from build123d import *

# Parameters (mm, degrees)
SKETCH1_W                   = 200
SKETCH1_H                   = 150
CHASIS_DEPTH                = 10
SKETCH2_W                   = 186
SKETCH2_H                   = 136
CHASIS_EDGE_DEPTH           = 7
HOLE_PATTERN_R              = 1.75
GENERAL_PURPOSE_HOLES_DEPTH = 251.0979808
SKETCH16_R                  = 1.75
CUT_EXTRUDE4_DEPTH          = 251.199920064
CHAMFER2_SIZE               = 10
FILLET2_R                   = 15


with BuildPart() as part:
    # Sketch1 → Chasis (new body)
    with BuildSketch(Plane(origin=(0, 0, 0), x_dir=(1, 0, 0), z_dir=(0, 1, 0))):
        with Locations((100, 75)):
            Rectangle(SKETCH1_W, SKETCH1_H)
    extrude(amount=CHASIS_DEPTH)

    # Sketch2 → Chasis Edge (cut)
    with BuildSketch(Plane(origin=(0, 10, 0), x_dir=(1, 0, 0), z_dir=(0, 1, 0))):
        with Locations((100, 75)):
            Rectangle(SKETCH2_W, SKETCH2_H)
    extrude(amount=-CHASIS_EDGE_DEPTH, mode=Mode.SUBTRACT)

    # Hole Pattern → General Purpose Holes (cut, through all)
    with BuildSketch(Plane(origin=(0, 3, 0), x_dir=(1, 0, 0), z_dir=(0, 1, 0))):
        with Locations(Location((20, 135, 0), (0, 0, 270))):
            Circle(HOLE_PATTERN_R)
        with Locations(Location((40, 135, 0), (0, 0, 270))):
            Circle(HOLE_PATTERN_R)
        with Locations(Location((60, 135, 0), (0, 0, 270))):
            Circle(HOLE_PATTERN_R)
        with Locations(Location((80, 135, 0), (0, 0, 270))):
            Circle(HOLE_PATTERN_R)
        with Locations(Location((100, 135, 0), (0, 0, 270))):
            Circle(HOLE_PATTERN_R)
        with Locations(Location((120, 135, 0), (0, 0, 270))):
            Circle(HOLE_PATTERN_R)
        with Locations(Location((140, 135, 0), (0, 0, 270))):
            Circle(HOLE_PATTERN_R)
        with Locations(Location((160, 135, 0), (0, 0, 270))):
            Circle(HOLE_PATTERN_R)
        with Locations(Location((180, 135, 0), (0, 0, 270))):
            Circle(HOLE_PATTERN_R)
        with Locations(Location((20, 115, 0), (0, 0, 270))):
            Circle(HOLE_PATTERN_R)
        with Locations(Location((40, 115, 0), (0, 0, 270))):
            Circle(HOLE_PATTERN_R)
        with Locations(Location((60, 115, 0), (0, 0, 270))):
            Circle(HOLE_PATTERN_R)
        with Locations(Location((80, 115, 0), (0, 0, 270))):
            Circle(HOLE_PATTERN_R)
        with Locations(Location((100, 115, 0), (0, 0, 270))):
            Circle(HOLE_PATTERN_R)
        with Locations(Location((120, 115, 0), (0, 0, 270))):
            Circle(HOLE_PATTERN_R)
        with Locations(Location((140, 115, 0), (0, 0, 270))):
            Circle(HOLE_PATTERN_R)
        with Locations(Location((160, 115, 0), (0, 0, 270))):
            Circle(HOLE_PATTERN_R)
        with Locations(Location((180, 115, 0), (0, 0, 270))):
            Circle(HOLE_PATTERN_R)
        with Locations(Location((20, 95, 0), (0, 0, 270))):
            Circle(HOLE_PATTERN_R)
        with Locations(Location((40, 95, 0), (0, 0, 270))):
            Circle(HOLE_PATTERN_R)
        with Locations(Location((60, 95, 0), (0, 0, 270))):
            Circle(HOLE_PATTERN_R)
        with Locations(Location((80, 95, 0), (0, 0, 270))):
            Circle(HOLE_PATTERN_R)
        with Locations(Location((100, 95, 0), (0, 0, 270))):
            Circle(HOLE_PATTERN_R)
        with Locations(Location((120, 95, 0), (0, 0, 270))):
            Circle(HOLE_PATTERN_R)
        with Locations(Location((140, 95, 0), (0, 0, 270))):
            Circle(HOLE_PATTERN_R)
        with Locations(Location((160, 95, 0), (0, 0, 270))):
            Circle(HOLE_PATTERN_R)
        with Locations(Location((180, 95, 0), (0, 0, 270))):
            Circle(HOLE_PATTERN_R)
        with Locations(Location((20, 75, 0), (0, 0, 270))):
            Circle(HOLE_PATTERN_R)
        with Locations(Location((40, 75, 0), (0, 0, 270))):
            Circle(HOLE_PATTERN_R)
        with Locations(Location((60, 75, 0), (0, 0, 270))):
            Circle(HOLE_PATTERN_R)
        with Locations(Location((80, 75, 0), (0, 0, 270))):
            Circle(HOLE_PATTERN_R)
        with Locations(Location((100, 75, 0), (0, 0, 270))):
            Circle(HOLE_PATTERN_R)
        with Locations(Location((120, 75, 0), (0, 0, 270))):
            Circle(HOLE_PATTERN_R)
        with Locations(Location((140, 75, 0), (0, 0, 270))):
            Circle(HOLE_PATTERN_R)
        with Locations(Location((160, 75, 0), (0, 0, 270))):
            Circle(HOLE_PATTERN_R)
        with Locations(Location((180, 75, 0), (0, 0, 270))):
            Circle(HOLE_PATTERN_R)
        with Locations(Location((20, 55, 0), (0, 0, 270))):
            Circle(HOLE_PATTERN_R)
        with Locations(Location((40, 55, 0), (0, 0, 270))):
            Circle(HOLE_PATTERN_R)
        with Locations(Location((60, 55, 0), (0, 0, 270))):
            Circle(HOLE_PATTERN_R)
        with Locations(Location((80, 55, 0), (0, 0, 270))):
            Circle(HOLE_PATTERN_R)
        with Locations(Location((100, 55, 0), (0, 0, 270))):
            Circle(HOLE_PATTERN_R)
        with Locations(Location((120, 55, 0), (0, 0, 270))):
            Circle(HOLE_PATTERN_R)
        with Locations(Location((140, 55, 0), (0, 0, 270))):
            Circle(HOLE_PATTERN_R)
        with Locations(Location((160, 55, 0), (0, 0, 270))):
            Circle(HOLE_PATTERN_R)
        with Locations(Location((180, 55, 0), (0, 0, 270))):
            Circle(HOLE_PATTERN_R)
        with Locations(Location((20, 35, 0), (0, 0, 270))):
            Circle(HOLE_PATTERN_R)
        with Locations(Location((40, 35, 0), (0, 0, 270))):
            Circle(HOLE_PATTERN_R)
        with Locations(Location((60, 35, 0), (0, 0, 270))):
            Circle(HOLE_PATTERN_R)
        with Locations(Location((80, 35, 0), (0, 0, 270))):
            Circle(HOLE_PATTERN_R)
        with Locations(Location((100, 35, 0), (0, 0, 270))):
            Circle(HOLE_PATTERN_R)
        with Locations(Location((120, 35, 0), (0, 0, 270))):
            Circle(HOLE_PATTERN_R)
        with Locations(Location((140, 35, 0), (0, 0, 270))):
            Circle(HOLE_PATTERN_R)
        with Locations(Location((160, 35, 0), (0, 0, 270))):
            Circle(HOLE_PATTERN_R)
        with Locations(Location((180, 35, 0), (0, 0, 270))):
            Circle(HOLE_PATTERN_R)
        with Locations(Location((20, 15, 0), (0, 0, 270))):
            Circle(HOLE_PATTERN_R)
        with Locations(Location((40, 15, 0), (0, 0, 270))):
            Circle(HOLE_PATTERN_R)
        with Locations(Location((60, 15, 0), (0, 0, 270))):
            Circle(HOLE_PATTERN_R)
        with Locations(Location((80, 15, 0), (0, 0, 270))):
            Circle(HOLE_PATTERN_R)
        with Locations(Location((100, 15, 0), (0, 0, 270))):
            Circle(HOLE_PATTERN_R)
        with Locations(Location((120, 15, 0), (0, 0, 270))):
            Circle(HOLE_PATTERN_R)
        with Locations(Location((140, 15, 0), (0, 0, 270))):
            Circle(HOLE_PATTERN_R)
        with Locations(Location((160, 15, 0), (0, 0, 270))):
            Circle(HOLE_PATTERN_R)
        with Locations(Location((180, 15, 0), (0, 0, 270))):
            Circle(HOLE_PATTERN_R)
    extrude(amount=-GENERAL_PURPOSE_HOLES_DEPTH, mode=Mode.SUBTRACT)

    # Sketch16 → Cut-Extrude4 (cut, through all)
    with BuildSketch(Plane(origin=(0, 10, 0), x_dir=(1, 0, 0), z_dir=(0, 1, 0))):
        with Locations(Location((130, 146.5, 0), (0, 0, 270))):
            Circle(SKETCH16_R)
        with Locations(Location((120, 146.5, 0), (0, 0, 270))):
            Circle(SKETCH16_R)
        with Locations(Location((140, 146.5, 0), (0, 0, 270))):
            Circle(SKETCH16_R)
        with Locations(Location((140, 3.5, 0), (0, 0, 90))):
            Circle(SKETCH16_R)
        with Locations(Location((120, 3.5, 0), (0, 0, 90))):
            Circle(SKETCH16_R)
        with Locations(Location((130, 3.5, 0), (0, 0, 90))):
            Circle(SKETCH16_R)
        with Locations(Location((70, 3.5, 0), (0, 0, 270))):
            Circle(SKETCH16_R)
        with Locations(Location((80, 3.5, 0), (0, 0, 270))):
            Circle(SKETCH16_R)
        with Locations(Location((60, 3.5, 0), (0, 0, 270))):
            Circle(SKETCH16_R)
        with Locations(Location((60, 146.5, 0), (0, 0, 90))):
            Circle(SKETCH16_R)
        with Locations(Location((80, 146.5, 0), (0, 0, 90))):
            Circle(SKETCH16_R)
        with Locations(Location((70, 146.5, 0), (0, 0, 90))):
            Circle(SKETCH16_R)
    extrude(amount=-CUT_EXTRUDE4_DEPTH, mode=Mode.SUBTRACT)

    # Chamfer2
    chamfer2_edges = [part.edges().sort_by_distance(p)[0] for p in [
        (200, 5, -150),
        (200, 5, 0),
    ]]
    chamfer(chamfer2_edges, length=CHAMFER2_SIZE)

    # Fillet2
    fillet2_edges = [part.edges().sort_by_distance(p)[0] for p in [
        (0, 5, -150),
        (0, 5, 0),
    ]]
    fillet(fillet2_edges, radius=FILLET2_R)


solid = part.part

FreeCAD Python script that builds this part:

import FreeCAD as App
import Part
import Sketcher

V = App.Vector
Q = App.Units.Quantity


def edges_at(feature, points):
    """Names of the edges that pass closest to the given points."""
    edges = feature.Shape.Edges
    near = lambda p: min(range(len(edges)), key=lambda i: edges[i].distToShape(Part.Vertex(*p))[0])
    return sorted({f"Edge{near(p) + 1}" for p in points})

doc = App.newDocument("Part")
body = doc.addObject("PartDesign::Body", "Body")

# Sketch on XZ plane
sketch1 = body.newObject("Sketcher::SketchObject", "Sketch")
sketch1.AttachmentSupport = (doc.getObject("XZ_Plane"), [""])
sketch1.MapMode = "FlatFace"
sketch1.addGeometry([
    Part.LineSegment(V(0, -150, 0), V(0, 0, 0)),
    Part.LineSegment(V(0, 0, 0), V(200, 0, 0)),
    Part.LineSegment(V(200, 0, 0), V(200, -150, 0)),
    Part.LineSegment(V(200, -150, 0), V(0, -150, 0)),
], False)
sketch1.addConstraint([
    Sketcher.Constraint("Coincident", 0, 2, 1, 1),
    Sketcher.Constraint("Coincident", 1, 2, 2, 1),
    Sketcher.Constraint("Coincident", 2, 2, 3, 1),
    Sketcher.Constraint("Coincident", 3, 2, 0, 1),
    Sketcher.Constraint("Vertical", 0),
    Sketcher.Constraint("Horizontal", 1),
    Sketcher.Constraint("Vertical", 2),
    Sketcher.Constraint("Horizontal", 3),
    Sketcher.Constraint("Coincident", 0, 2, -1, 1),
    Sketcher.Constraint("DistanceX", 1, 1, 1, 2, Q("200 mm")),
    Sketcher.Constraint("DistanceY", 0, 1, 0, 2, Q("150 mm")),
])
pad1 = body.newObject("PartDesign::Pad", "Pad")
pad1.Profile = sketch1
pad1.Length = 10
pad1.Reversed = True

# Sketch on XZ plane
sketch2 = body.newObject("Sketcher::SketchObject", "Sketch001")
sketch2.AttachmentSupport = (doc.getObject("XZ_Plane"), [""])
sketch2.MapMode = "FlatFace"
sketch2.AttachmentOffset = App.Placement(V(0, 0, -10), App.Rotation())
sketch2.addGeometry([
    Part.LineSegment(V(7, -143, 0), V(7, -7, 0)),
    Part.LineSegment(V(7, -7, 0), V(193, -7, 0)),
    Part.LineSegment(V(193, -7, 0), V(193, -143, 0)),
    Part.LineSegment(V(193, -143, 0), V(7, -143, 0)),
], False)
sketch2.addConstraint([
    Sketcher.Constraint("Coincident", 0, 2, 1, 1),
    Sketcher.Constraint("Coincident", 1, 2, 2, 1),
    Sketcher.Constraint("Coincident", 2, 2, 3, 1),
    Sketcher.Constraint("Coincident", 3, 2, 0, 1),
    Sketcher.Constraint("Vertical", 0),
    Sketcher.Constraint("Horizontal", 1),
    Sketcher.Constraint("Vertical", 2),
    Sketcher.Constraint("Horizontal", 3),
    Sketcher.Constraint("DistanceX", 1, 1, 1, 2, Q("186 mm")),
    Sketcher.Constraint("DistanceY", 0, 1, 0, 2, Q("136 mm")),
    Sketcher.Constraint("DistanceX", -1, 1, 0, 2, Q("7 mm")),
    Sketcher.Constraint("DistanceY", 0, 2, -1, 1, Q("7 mm")),
])
pocket1 = body.newObject("PartDesign::Pocket", "Pocket")
pocket1.Profile = sketch2
pocket1.Length = 7
pocket1.Reversed = True

# Sketch on XZ plane
sketch3 = body.newObject("Sketcher::SketchObject", "Sketch002")
sketch3.AttachmentSupport = (doc.getObject("XZ_Plane"), [""])
sketch3.MapMode = "FlatFace"
sketch3.AttachmentOffset = App.Placement(V(0, 0, -3), App.Rotation())
sketch3.addGeometry([
    Part.Circle(V(20, -135, 0), V(0, 0, 1), 1.8),  # 0
    Part.Circle(V(40, -135, 0), V(0, 0, 1), 1.8),  # 1
    Part.Circle(V(60, -135, 0), V(0, 0, 1), 1.8),  # 2
    Part.Circle(V(80, -135, 0), V(0, 0, 1), 1.8),  # 3
    Part.Circle(V(100, -135, 0), V(0, 0, 1), 1.8),  # 4
    Part.Circle(V(120, -135, 0), V(0, 0, 1), 1.8),  # 5
    Part.Circle(V(140, -135, 0), V(0, 0, 1), 1.8),  # 6
    Part.Circle(V(160, -135, 0), V(0, 0, 1), 1.8),  # 7
    Part.Circle(V(180, -135, 0), V(0, 0, 1), 1.8),  # 8
    Part.Circle(V(20, -115, 0), V(0, 0, 1), 1.8),  # 9
    Part.Circle(V(40, -115, 0), V(0, 0, 1), 1.8),  # 10
    Part.Circle(V(60, -115, 0), V(0, 0, 1), 1.8),  # 11
    Part.Circle(V(80, -115, 0), V(0, 0, 1), 1.8),  # 12
    Part.Circle(V(100, -115, 0), V(0, 0, 1), 1.8),  # 13
    Part.Circle(V(120, -115, 0), V(0, 0, 1), 1.8),  # 14
    Part.Circle(V(140, -115, 0), V(0, 0, 1), 1.8),  # 15
    Part.Circle(V(160, -115, 0), V(0, 0, 1), 1.8),  # 16
    Part.Circle(V(180, -115, 0), V(0, 0, 1), 1.8),  # 17
    Part.Circle(V(20, -95, 0), V(0, 0, 1), 1.8),  # 18
    Part.Circle(V(40, -95, 0), V(0, 0, 1), 1.8),  # 19
    Part.Circle(V(60, -95, 0), V(0, 0, 1), 1.8),  # 20
    Part.Circle(V(80, -95, 0), V(0, 0, 1), 1.8),  # 21
    Part.Circle(V(100, -95, 0), V(0, 0, 1), 1.8),  # 22
    Part.Circle(V(120, -95, 0), V(0, 0, 1), 1.8),  # 23
    Part.Circle(V(140, -95, 0), V(0, 0, 1), 1.8),  # 24
    Part.Circle(V(160, -95, 0), V(0, 0, 1), 1.8),  # 25
    Part.Circle(V(180, -95, 0), V(0, 0, 1), 1.8),  # 26
    Part.Circle(V(20, -75, 0), V(0, 0, 1), 1.8),  # 27
    Part.Circle(V(40, -75, 0), V(0, 0, 1), 1.8),  # 28
    Part.Circle(V(60, -75, 0), V(0, 0, 1), 1.8),  # 29
    Part.Circle(V(80, -75, 0), V(0, 0, 1), 1.8),  # 30
    Part.Circle(V(100, -75, 0), V(0, 0, 1), 1.8),  # 31
    Part.Circle(V(120, -75, 0), V(0, 0, 1), 1.8),  # 32
    Part.Circle(V(140, -75, 0), V(0, 0, 1), 1.8),  # 33
    Part.Circle(V(160, -75, 0), V(0, 0, 1), 1.8),  # 34
    Part.Circle(V(180, -75, 0), V(0, 0, 1), 1.8),  # 35
    Part.Circle(V(20, -55, 0), V(0, 0, 1), 1.8),  # 36
    Part.Circle(V(40, -55, 0), V(0, 0, 1), 1.8),  # 37
    Part.Circle(V(60, -55, 0), V(0, 0, 1), 1.8),  # 38
    Part.Circle(V(80, -55, 0), V(0, 0, 1), 1.8),  # 39
    Part.Circle(V(100, -55, 0), V(0, 0, 1), 1.8),  # 40
    Part.Circle(V(120, -55, 0), V(0, 0, 1), 1.8),  # 41
    Part.Circle(V(140, -55, 0), V(0, 0, 1), 1.8),  # 42
    Part.Circle(V(160, -55, 0), V(0, 0, 1), 1.8),  # 43
    Part.Circle(V(180, -55, 0), V(0, 0, 1), 1.8),  # 44
    Part.Circle(V(20, -35, 0), V(0, 0, 1), 1.8),  # 45
    Part.Circle(V(40, -35, 0), V(0, 0, 1), 1.8),  # 46
    Part.Circle(V(60, -35, 0), V(0, 0, 1), 1.8),  # 47
    Part.Circle(V(80, -35, 0), V(0, 0, 1), 1.8),  # 48
    Part.Circle(V(100, -35, 0), V(0, 0, 1), 1.8),  # 49
    Part.Circle(V(120, -35, 0), V(0, 0, 1), 1.8),  # 50
    Part.Circle(V(140, -35, 0), V(0, 0, 1), 1.8),  # 51
    Part.Circle(V(160, -35, 0), V(0, 0, 1), 1.8),  # 52
    Part.Circle(V(180, -35, 0), V(0, 0, 1), 1.8),  # 53
    Part.Circle(V(20, -15, 0), V(0, 0, 1), 1.8),  # 54
    Part.Circle(V(40, -15, 0), V(0, 0, 1), 1.8),  # 55
    Part.Circle(V(60, -15, 0), V(0, 0, 1), 1.8),  # 56
    Part.Circle(V(80, -15, 0), V(0, 0, 1), 1.8),  # 57
    Part.Circle(V(100, -15, 0), V(0, 0, 1), 1.8),  # 58
    Part.Circle(V(120, -15, 0), V(0, 0, 1), 1.8),  # 59
    Part.Circle(V(140, -15, 0), V(0, 0, 1), 1.8),  # 60
    Part.Circle(V(160, -15, 0), V(0, 0, 1), 1.8),  # 61
    Part.Circle(V(180, -15, 0), V(0, 0, 1), 1.8),  # 62
], False)
sketch3.addConstraint([
    Sketcher.Constraint("Equal", 0, 1),
    Sketcher.Constraint("Equal", 1, 2),
    Sketcher.Constraint("Equal", 2, 3),
    Sketcher.Constraint("Equal", 3, 4),
    Sketcher.Constraint("Equal", 4, 5),
    Sketcher.Constraint("Equal", 5, 6),
    Sketcher.Constraint("Equal", 6, 7),
    Sketcher.Constraint("Equal", 7, 8),
    Sketcher.Constraint("Equal", 8, 9),
    Sketcher.Constraint("Equal", 9, 10),
    Sketcher.Constraint("Equal", 10, 11),
    Sketcher.Constraint("Equal", 11, 12),
    Sketcher.Constraint("Equal", 12, 13),
    Sketcher.Constraint("Equal", 13, 14),
    Sketcher.Constraint("Equal", 14, 15),
    Sketcher.Constraint("Equal", 15, 16),
    Sketcher.Constraint("Equal", 16, 17),
    Sketcher.Constraint("Equal", 17, 18),
    Sketcher.Constraint("Equal", 18, 19),
    Sketcher.Constraint("Equal", 19, 20),
    Sketcher.Constraint("Equal", 20, 21),
    Sketcher.Constraint("Equal", 21, 22),
    Sketcher.Constraint("Equal", 22, 23),
    Sketcher.Constraint("Equal", 23, 24),
    Sketcher.Constraint("Equal", 24, 25),
    Sketcher.Constraint("Equal", 25, 26),
    Sketcher.Constraint("Equal", 26, 27),
    Sketcher.Constraint("Equal", 27, 28),
    Sketcher.Constraint("Equal", 28, 29),
    Sketcher.Constraint("Equal", 29, 30),
    Sketcher.Constraint("Equal", 30, 31),
    Sketcher.Constraint("Equal", 31, 32),
    Sketcher.Constraint("Equal", 32, 33),
    Sketcher.Constraint("Equal", 33, 34),
    Sketcher.Constraint("Equal", 34, 35),
    Sketcher.Constraint("Equal", 35, 36),
    Sketcher.Constraint("Equal", 36, 37),
    Sketcher.Constraint("Equal", 37, 38),
    Sketcher.Constraint("Equal", 38, 39),
    Sketcher.Constraint("Equal", 39, 40),
    Sketcher.Constraint("Equal", 40, 41),
    Sketcher.Constraint("Equal", 41, 42),
    Sketcher.Constraint("Equal", 42, 43),
    Sketcher.Constraint("Equal", 43, 44),
    Sketcher.Constraint("Equal", 44, 45),
    Sketcher.Constraint("Equal", 45, 46),
    Sketcher.Constraint("Equal", 46, 47),
    Sketcher.Constraint("Equal", 47, 48),
    Sketcher.Constraint("Equal", 48, 49),
    Sketcher.Constraint("Equal", 49, 50),
    Sketcher.Constraint("Equal", 50, 51),
    Sketcher.Constraint("Equal", 51, 52),
    Sketcher.Constraint("Equal", 52, 53),
    Sketcher.Constraint("Equal", 53, 54),
    Sketcher.Constraint("Equal", 54, 55),
    Sketcher.Constraint("Equal", 55, 56),
    Sketcher.Constraint("Equal", 56, 57),
    Sketcher.Constraint("Equal", 57, 58),
    Sketcher.Constraint("Equal", 58, 59),
    Sketcher.Constraint("Equal", 59, 60),
    Sketcher.Constraint("Equal", 60, 61),
    Sketcher.Constraint("Equal", 61, 62),
    Sketcher.Constraint("Horizontal", 0, 3, 1, 3),
    Sketcher.Constraint("Horizontal", 1, 3, 2, 3),
    Sketcher.Constraint("Horizontal", 2, 3, 3, 3),
    Sketcher.Constraint("Horizontal", 3, 3, 4, 3),
    Sketcher.Constraint("Horizontal", 4, 3, 5, 3),
    Sketcher.Constraint("Horizontal", 5, 3, 6, 3),
    Sketcher.Constraint("Horizontal", 6, 3, 7, 3),
    Sketcher.Constraint("Horizontal", 7, 3, 8, 3),
    Sketcher.Constraint("Horizontal", 9, 3, 10, 3),
    Sketcher.Constraint("Horizontal", 10, 3, 11, 3),
    Sketcher.Constraint("Horizontal", 11, 3, 12, 3),
    Sketcher.Constraint("Horizontal", 12, 3, 13, 3),
    Sketcher.Constraint("Horizontal", 13, 3, 14, 3),
    Sketcher.Constraint("Horizontal", 14, 3, 15, 3),
    Sketcher.Constraint("Horizontal", 15, 3, 16, 3),
    Sketcher.Constraint("Horizontal", 16, 3, 17, 3),
    Sketcher.Constraint("Horizontal", 18, 3, 19, 3),
    Sketcher.Constraint("Horizontal", 19, 3, 20, 3),
    Sketcher.Constraint("Horizontal", 20, 3, 21, 3),
    Sketcher.Constraint("Horizontal", 21, 3, 22, 3),
    Sketcher.Constraint("Horizontal", 22, 3, 23, 3),
    Sketcher.Constraint("Horizontal", 23, 3, 24, 3),
    Sketcher.Constraint("Horizontal", 24, 3, 25, 3),
    Sketcher.Constraint("Horizontal", 25, 3, 26, 3),
    Sketcher.Constraint("Horizontal", 27, 3, 28, 3),
    Sketcher.Constraint("Horizontal", 28, 3, 29, 3),
    Sketcher.Constraint("Horizontal", 29, 3, 30, 3),
    Sketcher.Constraint("Horizontal", 30, 3, 31, 3),
    Sketcher.Constraint("Horizontal", 31, 3, 32, 3),
    Sketcher.Constraint("Horizontal", 32, 3, 33, 3),
    Sketcher.Constraint("Horizontal", 33, 3, 34, 3),
    Sketcher.Constraint("Horizontal", 34, 3, 35, 3),
    Sketcher.Constraint("Horizontal", 36, 3, 37, 3),
    Sketcher.Constraint("Horizontal", 37, 3, 38, 3),
    Sketcher.Constraint("Horizontal", 38, 3, 39, 3),
    Sketcher.Constraint("Horizontal", 39, 3, 40, 3),
    Sketcher.Constraint("Horizontal", 40, 3, 41, 3),
    Sketcher.Constraint("Horizontal", 41, 3, 42, 3),
    Sketcher.Constraint("Horizontal", 42, 3, 43, 3),
    Sketcher.Constraint("Horizontal", 43, 3, 44, 3),
    Sketcher.Constraint("Horizontal", 45, 3, 46, 3),
    Sketcher.Constraint("Horizontal", 46, 3, 47, 3),
    Sketcher.Constraint("Horizontal", 47, 3, 48, 3),
    Sketcher.Constraint("Horizontal", 48, 3, 49, 3),
    Sketcher.Constraint("Horizontal", 49, 3, 50, 3),
    Sketcher.Constraint("Horizontal", 50, 3, 51, 3),
    Sketcher.Constraint("Horizontal", 51, 3, 52, 3),
    Sketcher.Constraint("Horizontal", 52, 3, 53, 3),
    Sketcher.Constraint("Horizontal", 54, 3, 55, 3),
    Sketcher.Constraint("Horizontal", 55, 3, 56, 3),
    Sketcher.Constraint("Horizontal", 56, 3, 57, 3),
    Sketcher.Constraint("Horizontal", 57, 3, 58, 3),
    Sketcher.Constraint("Horizontal", 58, 3, 59, 3),
    Sketcher.Constraint("Horizontal", 59, 3, 60, 3),
    Sketcher.Constraint("Horizontal", 60, 3, 61, 3),
    Sketcher.Constraint("Horizontal", 61, 3, 62, 3),
    Sketcher.Constraint("Vertical", 0, 3, 9, 3),
    Sketcher.Constraint("Vertical", 1, 3, 10, 3),
    Sketcher.Constraint("Vertical", 2, 3, 11, 3),
    Sketcher.Constraint("Vertical", 3, 3, 12, 3),
    Sketcher.Constraint("Vertical", 4, 3, 13, 3),
    Sketcher.Constraint("Vertical", 5, 3, 14, 3),
    Sketcher.Constraint("Vertical", 6, 3, 15, 3),
    Sketcher.Constraint("Vertical", 7, 3, 16, 3),
    Sketcher.Constraint("Vertical", 8, 3, 17, 3),
    Sketcher.Constraint("Vertical", 9, 3, 18, 3),
    Sketcher.Constraint("Vertical", 10, 3, 19, 3),
    Sketcher.Constraint("Vertical", 11, 3, 20, 3),
    Sketcher.Constraint("Vertical", 12, 3, 21, 3),
    Sketcher.Constraint("Vertical", 13, 3, 22, 3),
    Sketcher.Constraint("Vertical", 14, 3, 23, 3),
    Sketcher.Constraint("Vertical", 15, 3, 24, 3),
    Sketcher.Constraint("Vertical", 16, 3, 25, 3),
    Sketcher.Constraint("Vertical", 17, 3, 26, 3),
    Sketcher.Constraint("Vertical", 18, 3, 27, 3),
    Sketcher.Constraint("Vertical", 19, 3, 28, 3),
    Sketcher.Constraint("Vertical", 20, 3, 29, 3),
    Sketcher.Constraint("Vertical", 21, 3, 30, 3),
    Sketcher.Constraint("Vertical", 22, 3, 31, 3),
    Sketcher.Constraint("Vertical", 23, 3, 32, 3),
    Sketcher.Constraint("Vertical", 24, 3, 33, 3),
    Sketcher.Constraint("Vertical", 25, 3, 34, 3),
    Sketcher.Constraint("Vertical", 26, 3, 35, 3),
    Sketcher.Constraint("Vertical", 27, 3, 36, 3),
    Sketcher.Constraint("Vertical", 28, 3, 37, 3),
    Sketcher.Constraint("Vertical", 29, 3, 38, 3),
    Sketcher.Constraint("Vertical", 30, 3, 39, 3),
    Sketcher.Constraint("Vertical", 31, 3, 40, 3),
    Sketcher.Constraint("Vertical", 32, 3, 41, 3),
    Sketcher.Constraint("Vertical", 33, 3, 42, 3),
    Sketcher.Constraint("Vertical", 34, 3, 43, 3),
    Sketcher.Constraint("Vertical", 35, 3, 44, 3),
    Sketcher.Constraint("Vertical", 36, 3, 45, 3),
    Sketcher.Constraint("Vertical", 37, 3, 46, 3),
    Sketcher.Constraint("Vertical", 38, 3, 47, 3),
    Sketcher.Constraint("Vertical", 39, 3, 48, 3),
    Sketcher.Constraint("Vertical", 40, 3, 49, 3),
    Sketcher.Constraint("Vertical", 41, 3, 50, 3),
    Sketcher.Constraint("Vertical", 42, 3, 51, 3),
    Sketcher.Constraint("Vertical", 43, 3, 52, 3),
    Sketcher.Constraint("Vertical", 44, 3, 53, 3),
    Sketcher.Constraint("Vertical", 45, 3, 54, 3),
    Sketcher.Constraint("Vertical", 46, 3, 55, 3),
    Sketcher.Constraint("Vertical", 47, 3, 56, 3),
    Sketcher.Constraint("Vertical", 48, 3, 57, 3),
    Sketcher.Constraint("Vertical", 49, 3, 58, 3),
    Sketcher.Constraint("Vertical", 50, 3, 59, 3),
    Sketcher.Constraint("Vertical", 51, 3, 60, 3),
    Sketcher.Constraint("Vertical", 52, 3, 61, 3),
    Sketcher.Constraint("Vertical", 53, 3, 62, 3),
    Sketcher.Constraint("Diameter", 0, Q("3.5 mm")),
    Sketcher.Constraint("DistanceX", -1, 1, 0, 3, Q("20 mm")),
    Sketcher.Constraint("DistanceY", 0, 3, -1, 1, Q("135 mm")),
    Sketcher.Constraint("DistanceX", -1, 1, 1, 3, Q("40 mm")),
    Sketcher.Constraint("DistanceX", -1, 1, 2, 3, Q("60 mm")),
    Sketcher.Constraint("DistanceX", -1, 1, 3, 3, Q("80 mm")),
    Sketcher.Constraint("DistanceX", -1, 1, 4, 3, Q("100 mm")),
    Sketcher.Constraint("DistanceX", -1, 1, 5, 3, Q("120 mm")),
    Sketcher.Constraint("DistanceX", -1, 1, 6, 3, Q("140 mm")),
    Sketcher.Constraint("DistanceX", -1, 1, 7, 3, Q("160 mm")),
    Sketcher.Constraint("DistanceX", -1, 1, 8, 3, Q("180 mm")),
    Sketcher.Constraint("DistanceY", 9, 3, -1, 1, Q("115 mm")),
    Sketcher.Constraint("DistanceY", 18, 3, -1, 1, Q("95 mm")),
    Sketcher.Constraint("DistanceY", 27, 3, -1, 1, Q("75 mm")),
    Sketcher.Constraint("DistanceY", 36, 3, -1, 1, Q("55 mm")),
    Sketcher.Constraint("DistanceY", 45, 3, -1, 1, Q("35 mm")),
    Sketcher.Constraint("DistanceY", 54, 3, -1, 1, Q("15 mm")),
])
pocket2 = body.newObject("PartDesign::Pocket", "Pocket001")
pocket2.Profile = sketch3
pocket2.Type = "ThroughAll"
pocket2.Reversed = True

# Sketch on XZ plane
sketch4 = body.newObject("Sketcher::SketchObject", "Sketch003")
sketch4.AttachmentSupport = (doc.getObject("XZ_Plane"), [""])
sketch4.MapMode = "FlatFace"
sketch4.AttachmentOffset = App.Placement(V(0, 0, -10), App.Rotation())
sketch4.addGeometry([
    Part.Circle(V(130, -146.5, 0), V(0, 0, 1), 1.8),  # 0
    Part.Circle(V(120, -146.5, 0), V(0, 0, 1), 1.8),  # 1
    Part.Circle(V(140, -146.5, 0), V(0, 0, 1), 1.8),  # 2
    Part.Circle(V(140, -3.5, 0), V(0, 0, 1), 1.8),  # 3
    Part.Circle(V(120, -3.5, 0), V(0, 0, 1), 1.8),  # 4
    Part.Circle(V(130, -3.5, 0), V(0, 0, 1), 1.8),  # 5
    Part.Circle(V(70, -3.5, 0), V(0, 0, 1), 1.8),  # 6
    Part.Circle(V(80, -3.5, 0), V(0, 0, 1), 1.8),  # 7
    Part.Circle(V(60, -3.5, 0), V(0, 0, 1), 1.8),  # 8
    Part.Circle(V(60, -146.5, 0), V(0, 0, 1), 1.8),  # 9
    Part.Circle(V(80, -146.5, 0), V(0, 0, 1), 1.8),  # 10
    Part.Circle(V(70, -146.5, 0), V(0, 0, 1), 1.8),  # 11
], False)
sketch4.addConstraint([
    Sketcher.Constraint("Equal", 0, 1),
    Sketcher.Constraint("Equal", 1, 2),
    Sketcher.Constraint("Equal", 2, 3),
    Sketcher.Constraint("Equal", 3, 4),
    Sketcher.Constraint("Equal", 4, 5),
    Sketcher.Constraint("Equal", 5, 6),
    Sketcher.Constraint("Equal", 6, 7),
    Sketcher.Constraint("Equal", 7, 8),
    Sketcher.Constraint("Equal", 8, 9),
    Sketcher.Constraint("Equal", 9, 10),
    Sketcher.Constraint("Equal", 10, 11),
    Sketcher.Constraint("Horizontal", 0, 3, 1, 3),
    Sketcher.Constraint("Horizontal", 1, 3, 2, 3),
    Sketcher.Constraint("Horizontal", 3, 3, 4, 3),
    Sketcher.Constraint("Horizontal", 4, 3, 5, 3),
    Sketcher.Constraint("Horizontal", 5, 3, 6, 3),
    Sketcher.Constraint("Horizontal", 6, 3, 7, 3),
    Sketcher.Constraint("Horizontal", 7, 3, 8, 3),
    Sketcher.Constraint("Horizontal", 2, 3, 9, 3),
    Sketcher.Constraint("Horizontal", 9, 3, 10, 3),
    Sketcher.Constraint("Horizontal", 10, 3, 11, 3),
    Sketcher.Constraint("Vertical", 2, 3, 3, 3),
    Sketcher.Constraint("Vertical", 1, 3, 4, 3),
    Sketcher.Constraint("Vertical", 0, 3, 5, 3),
    Sketcher.Constraint("Vertical", 8, 3, 9, 3),
    Sketcher.Constraint("Vertical", 7, 3, 10, 3),
    Sketcher.Constraint("Vertical", 6, 3, 11, 3),
    Sketcher.Constraint("Diameter", 0, Q("3.5 mm")),
    Sketcher.Constraint("DistanceX", -1, 1, 0, 3, Q("130 mm")),
    Sketcher.Constraint("DistanceX", -1, 1, 1, 3, Q("120 mm")),
    Sketcher.Constraint("DistanceX", -1, 1, 2, 3, Q("140 mm")),
    Sketcher.Constraint("DistanceX", -1, 1, 6, 3, Q("70 mm")),
    Sketcher.Constraint("DistanceX", -1, 1, 7, 3, Q("80 mm")),
    Sketcher.Constraint("DistanceX", -1, 1, 8, 3, Q("60 mm")),
    Sketcher.Constraint("DistanceY", 2, 3, 3, 3, Q("143 mm")),
    Sketcher.Constraint("DistanceY", 0, 3, -1, 1, Q("146.5 mm")),
])
pocket3 = body.newObject("PartDesign::Pocket", "Pocket002")
pocket3.Profile = sketch4
pocket3.Type = "ThroughAll"
pocket3.Reversed = True
doc.recompute()

chamfer = body.newObject("PartDesign::Chamfer", "Chamfer")
chamfer.Base = (pocket3, edges_at(pocket3, [(200, 5, -150), (200, 5, 0)]))
chamfer.Size = 10
doc.recompute()

fillet = body.newObject("PartDesign::Fillet", "Fillet")
fillet.Base = (chamfer, edges_at(chamfer, [(0, 5, -150), (0, 5, 0)]))
fillet.Radius = 15

doc.recompute()
